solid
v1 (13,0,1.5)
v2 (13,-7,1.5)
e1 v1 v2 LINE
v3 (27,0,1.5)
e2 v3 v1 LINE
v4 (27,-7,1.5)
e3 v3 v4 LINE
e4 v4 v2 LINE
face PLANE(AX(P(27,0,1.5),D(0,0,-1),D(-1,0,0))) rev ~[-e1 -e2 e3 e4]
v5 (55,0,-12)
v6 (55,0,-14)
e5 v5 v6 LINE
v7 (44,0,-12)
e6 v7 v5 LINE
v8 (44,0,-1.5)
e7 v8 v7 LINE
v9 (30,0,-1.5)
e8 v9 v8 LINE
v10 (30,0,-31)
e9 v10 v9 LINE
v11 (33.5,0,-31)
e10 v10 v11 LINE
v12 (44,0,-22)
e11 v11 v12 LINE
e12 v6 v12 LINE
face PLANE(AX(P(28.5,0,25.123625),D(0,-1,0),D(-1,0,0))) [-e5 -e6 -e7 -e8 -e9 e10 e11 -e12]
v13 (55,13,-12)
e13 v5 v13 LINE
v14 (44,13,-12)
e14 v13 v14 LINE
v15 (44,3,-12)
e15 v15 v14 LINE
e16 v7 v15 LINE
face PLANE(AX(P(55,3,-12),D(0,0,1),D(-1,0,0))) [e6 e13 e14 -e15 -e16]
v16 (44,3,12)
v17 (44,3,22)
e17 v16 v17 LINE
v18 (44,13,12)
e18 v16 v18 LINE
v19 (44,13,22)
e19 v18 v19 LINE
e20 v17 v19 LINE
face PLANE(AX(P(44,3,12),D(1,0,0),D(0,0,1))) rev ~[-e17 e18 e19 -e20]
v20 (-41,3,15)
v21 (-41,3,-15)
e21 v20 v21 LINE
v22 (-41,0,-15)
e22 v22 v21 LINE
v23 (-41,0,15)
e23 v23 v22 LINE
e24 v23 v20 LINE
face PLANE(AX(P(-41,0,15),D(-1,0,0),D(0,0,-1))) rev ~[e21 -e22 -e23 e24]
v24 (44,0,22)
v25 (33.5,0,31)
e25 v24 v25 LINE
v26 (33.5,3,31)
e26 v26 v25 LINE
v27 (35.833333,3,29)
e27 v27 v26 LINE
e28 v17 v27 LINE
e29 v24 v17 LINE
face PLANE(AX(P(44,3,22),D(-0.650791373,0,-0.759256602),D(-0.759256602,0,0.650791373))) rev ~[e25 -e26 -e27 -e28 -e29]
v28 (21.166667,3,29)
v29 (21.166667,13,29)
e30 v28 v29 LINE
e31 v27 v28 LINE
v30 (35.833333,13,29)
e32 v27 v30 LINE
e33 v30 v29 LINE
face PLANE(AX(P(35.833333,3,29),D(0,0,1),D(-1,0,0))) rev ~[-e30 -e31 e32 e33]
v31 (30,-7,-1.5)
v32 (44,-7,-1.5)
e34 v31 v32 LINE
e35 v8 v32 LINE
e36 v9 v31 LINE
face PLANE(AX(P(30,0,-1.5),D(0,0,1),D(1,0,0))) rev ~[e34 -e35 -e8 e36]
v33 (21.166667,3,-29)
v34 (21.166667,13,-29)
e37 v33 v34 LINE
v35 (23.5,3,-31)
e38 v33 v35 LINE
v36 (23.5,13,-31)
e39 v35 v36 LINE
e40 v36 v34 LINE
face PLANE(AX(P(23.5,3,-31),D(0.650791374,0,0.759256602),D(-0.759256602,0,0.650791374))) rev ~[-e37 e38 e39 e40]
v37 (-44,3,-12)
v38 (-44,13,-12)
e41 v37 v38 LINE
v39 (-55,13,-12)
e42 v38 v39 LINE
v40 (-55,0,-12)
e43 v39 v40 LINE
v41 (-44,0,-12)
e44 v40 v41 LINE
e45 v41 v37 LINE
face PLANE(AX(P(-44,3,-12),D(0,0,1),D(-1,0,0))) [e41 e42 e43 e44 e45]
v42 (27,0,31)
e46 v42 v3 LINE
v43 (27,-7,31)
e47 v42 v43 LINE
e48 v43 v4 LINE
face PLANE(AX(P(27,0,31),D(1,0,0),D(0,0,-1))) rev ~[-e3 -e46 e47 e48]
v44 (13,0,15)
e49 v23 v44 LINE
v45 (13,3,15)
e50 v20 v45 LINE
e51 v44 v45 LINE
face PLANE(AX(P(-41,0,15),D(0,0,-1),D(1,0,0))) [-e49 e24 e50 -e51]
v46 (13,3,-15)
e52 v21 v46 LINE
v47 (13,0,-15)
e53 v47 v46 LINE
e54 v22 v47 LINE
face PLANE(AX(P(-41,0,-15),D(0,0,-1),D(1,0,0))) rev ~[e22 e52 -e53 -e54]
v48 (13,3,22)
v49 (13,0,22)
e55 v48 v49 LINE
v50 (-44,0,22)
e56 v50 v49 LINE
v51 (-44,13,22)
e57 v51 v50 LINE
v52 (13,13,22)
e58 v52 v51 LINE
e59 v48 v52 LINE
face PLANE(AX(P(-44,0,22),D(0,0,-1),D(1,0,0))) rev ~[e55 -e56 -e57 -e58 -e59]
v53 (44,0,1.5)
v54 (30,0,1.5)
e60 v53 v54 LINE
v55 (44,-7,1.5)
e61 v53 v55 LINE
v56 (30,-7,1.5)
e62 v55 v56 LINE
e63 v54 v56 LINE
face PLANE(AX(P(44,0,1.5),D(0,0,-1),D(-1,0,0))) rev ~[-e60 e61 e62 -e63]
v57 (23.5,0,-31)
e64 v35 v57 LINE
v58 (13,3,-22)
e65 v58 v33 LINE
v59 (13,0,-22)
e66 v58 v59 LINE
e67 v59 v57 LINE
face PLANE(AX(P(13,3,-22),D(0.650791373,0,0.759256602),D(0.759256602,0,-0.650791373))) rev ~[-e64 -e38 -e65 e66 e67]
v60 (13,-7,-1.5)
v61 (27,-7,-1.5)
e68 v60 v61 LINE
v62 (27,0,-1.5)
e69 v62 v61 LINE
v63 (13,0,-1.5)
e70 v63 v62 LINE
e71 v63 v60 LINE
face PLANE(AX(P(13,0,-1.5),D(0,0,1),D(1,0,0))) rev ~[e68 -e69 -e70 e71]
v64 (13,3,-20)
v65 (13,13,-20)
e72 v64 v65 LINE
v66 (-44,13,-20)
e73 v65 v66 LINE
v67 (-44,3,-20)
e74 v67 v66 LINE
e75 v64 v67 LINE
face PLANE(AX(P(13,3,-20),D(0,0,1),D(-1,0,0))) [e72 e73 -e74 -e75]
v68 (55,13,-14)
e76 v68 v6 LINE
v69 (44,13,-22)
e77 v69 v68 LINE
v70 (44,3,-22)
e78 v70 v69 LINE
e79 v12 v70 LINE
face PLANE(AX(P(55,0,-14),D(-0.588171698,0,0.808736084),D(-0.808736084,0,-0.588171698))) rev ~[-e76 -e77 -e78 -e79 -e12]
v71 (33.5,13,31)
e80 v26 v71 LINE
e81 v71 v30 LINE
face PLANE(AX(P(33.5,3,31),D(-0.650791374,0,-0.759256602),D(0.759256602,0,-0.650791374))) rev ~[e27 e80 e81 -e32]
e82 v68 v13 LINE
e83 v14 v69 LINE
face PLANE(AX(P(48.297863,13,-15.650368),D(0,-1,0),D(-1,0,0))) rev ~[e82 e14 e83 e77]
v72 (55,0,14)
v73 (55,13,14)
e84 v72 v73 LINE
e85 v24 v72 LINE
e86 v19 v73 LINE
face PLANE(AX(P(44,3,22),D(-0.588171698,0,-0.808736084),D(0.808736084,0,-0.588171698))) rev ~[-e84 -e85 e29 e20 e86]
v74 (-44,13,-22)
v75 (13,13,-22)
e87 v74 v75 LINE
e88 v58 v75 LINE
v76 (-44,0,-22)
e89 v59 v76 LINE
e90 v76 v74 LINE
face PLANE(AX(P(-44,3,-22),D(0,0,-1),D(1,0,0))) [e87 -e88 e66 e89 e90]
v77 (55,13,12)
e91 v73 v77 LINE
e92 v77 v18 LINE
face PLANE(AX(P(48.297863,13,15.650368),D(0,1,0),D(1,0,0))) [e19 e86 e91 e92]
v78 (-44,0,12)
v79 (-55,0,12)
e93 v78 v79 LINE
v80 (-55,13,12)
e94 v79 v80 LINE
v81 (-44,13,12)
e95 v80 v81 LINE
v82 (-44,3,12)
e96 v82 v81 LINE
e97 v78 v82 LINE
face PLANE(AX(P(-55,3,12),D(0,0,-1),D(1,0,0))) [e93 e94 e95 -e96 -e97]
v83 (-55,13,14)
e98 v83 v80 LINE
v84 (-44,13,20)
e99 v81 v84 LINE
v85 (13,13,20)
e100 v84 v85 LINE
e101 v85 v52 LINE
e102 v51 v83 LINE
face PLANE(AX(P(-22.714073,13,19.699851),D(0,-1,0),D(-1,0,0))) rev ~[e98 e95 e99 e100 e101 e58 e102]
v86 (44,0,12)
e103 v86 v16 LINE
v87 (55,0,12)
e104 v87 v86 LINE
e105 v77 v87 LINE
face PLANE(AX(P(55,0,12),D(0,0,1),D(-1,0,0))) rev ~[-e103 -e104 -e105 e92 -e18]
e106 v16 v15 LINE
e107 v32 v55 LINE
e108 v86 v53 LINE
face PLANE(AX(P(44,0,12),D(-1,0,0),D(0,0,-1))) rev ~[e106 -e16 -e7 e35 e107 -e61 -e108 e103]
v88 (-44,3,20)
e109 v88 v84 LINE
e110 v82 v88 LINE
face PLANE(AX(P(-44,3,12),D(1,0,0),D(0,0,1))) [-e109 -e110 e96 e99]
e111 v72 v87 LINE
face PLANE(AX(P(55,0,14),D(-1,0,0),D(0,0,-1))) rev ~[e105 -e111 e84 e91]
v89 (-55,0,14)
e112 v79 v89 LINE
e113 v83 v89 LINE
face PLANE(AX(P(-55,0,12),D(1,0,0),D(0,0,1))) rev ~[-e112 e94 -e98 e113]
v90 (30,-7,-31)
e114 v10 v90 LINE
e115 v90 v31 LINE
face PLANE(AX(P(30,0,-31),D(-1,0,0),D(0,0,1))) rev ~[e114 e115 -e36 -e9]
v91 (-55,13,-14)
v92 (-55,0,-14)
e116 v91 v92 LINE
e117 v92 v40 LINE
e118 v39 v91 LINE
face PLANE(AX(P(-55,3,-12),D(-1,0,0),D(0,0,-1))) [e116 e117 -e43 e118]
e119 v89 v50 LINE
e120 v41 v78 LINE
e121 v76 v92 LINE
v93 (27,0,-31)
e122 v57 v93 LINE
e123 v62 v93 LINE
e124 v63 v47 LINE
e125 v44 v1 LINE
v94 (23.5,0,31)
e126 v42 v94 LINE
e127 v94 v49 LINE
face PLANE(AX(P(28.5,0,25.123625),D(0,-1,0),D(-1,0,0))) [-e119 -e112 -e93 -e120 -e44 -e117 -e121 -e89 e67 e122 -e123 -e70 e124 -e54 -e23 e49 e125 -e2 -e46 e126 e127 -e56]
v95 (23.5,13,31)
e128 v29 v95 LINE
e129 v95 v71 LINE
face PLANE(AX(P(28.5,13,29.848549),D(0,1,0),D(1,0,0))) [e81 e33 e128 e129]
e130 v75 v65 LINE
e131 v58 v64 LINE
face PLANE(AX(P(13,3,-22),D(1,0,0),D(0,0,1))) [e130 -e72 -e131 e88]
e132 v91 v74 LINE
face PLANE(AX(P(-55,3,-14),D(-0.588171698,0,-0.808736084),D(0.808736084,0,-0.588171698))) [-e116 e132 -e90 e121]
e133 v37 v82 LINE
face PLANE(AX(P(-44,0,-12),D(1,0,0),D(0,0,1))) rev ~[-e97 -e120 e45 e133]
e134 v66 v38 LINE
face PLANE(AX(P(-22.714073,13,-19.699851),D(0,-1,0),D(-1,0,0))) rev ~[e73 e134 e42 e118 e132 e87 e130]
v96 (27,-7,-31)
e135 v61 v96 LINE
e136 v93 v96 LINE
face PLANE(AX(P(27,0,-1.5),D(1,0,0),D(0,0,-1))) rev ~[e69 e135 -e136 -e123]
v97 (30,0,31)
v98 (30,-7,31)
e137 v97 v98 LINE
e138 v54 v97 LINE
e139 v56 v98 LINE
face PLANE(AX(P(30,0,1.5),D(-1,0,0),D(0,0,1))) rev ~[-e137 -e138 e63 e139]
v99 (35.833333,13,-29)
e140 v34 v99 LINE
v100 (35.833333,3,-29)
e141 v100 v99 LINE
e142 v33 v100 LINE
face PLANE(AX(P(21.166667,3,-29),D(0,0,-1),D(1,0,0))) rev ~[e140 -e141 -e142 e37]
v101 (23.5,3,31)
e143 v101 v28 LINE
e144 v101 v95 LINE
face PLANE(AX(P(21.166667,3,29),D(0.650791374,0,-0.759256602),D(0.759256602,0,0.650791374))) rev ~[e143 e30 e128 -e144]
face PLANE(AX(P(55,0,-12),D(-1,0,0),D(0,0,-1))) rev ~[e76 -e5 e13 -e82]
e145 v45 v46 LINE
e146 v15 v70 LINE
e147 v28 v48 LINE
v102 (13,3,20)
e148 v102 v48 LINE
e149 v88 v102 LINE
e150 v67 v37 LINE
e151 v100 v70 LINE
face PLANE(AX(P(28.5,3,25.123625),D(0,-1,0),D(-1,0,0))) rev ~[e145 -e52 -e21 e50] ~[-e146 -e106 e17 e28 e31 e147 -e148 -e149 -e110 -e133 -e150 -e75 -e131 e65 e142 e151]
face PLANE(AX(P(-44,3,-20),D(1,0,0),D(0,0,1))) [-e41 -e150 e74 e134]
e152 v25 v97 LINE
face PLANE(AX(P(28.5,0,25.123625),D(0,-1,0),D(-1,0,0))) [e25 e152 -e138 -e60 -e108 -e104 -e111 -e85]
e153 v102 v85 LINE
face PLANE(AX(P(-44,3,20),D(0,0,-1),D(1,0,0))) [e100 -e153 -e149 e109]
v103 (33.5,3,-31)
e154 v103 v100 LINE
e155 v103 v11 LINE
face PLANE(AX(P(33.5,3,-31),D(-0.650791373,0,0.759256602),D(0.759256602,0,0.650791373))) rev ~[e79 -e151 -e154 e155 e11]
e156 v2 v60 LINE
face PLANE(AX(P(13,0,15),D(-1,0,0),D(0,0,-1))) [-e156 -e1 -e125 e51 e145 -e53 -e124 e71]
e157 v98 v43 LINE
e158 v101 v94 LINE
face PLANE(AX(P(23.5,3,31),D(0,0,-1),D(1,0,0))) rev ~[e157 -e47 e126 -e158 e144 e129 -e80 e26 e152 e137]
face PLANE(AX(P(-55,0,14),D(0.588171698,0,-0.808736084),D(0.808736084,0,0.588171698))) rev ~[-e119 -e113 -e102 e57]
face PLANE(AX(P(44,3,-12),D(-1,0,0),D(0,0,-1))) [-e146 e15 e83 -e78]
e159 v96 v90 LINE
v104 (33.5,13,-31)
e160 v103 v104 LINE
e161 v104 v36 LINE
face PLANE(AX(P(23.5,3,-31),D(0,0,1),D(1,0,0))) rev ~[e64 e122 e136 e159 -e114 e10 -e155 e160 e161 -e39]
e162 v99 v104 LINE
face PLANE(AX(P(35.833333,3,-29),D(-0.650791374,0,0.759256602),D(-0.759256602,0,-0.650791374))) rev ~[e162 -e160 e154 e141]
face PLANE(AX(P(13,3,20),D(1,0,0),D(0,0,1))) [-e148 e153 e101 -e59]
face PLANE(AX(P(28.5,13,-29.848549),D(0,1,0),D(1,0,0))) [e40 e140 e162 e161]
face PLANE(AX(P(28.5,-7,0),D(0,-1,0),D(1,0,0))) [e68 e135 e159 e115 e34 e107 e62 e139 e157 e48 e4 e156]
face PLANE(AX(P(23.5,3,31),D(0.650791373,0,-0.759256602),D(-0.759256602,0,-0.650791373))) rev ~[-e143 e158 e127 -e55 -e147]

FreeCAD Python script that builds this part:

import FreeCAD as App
import Part
import Sketcher

V = App.Vector


def add_polygon(sketch, points):
    """Adds a closed chain of lines whose ends are joined by coincident constraints."""
    first, n = sketch.GeometryCount, len(points)
    for a, b in zip(points, points[1:] + points[:1]):
        sketch.addGeometry(Part.LineSegment(App.Vector(*a, 0), App.Vector(*b, 0)), False)
    for i in range(n):
        sketch.addConstraint(Sketcher.Constraint("Coincident", first + i, 2, first + (i + 1) % n, 1))

doc = App.newDocument("Part")
body = doc.addObject("PartDesign::Body", "Body")

# Sketch on XZ plane
sketch1 = body.newObject("Sketcher::SketchObject", "Sketch")
sketch1.AttachmentSupport = (doc.getObject("XZ_Plane"), [""])
sketch1.MapMode = "FlatFace"
add_polygon(sketch1, [(-55, -12), (-44, -12), (-44, 12), (-55, 12), (-55, 14), (-44, 22), (44, 22), (55, 14), (55, 12), (44, 12), (44, -12), (55, -12), (55, -14), (44, -22), (-44, -22), (-55, -14)])  # lines 0-15
add_polygon(sketch1, [(13, 15), (-41, 15), (-41, -15), (13, -15)])  # lines 16-19
sketch1.addConstraint([
    Sketcher.Constraint("Horizontal", 0),
    Sketcher.Constraint("Vertical", 1),
    Sketcher.Constraint("Horizontal", 2),
    Sketcher.Constraint("Vertical", 3),
    Sketcher.Constraint("Horizontal", 5),
    Sketcher.Constraint("Vertical", 7),
    Sketcher.Constraint("Horizontal", 8),
    Sketcher.Constraint("Vertical", 9),
    Sketcher.Constraint("Horizontal", 10),
    Sketcher.Constraint("Vertical", 11),
    Sketcher.Constraint("Horizontal", 13),
    Sketcher.Constraint("Vertical", 15),
    Sketcher.Constraint("Horizontal", 16),
    Sketcher.Constraint("Vertical", 17),
    Sketcher.Constraint("Horizontal", 18),
    Sketcher.Constraint("Vertical", 19),
    Sketcher.Constraint("Symmetric", 0, 2, 8, 2, -1, 1),
    Sketcher.Constraint("Symmetric", 2, 2, 10, 2, -1, 1),
    Sketcher.Constraint("Symmetric", 4, 2, 12, 2, -1, 1),
    Sketcher.Constraint("Symmetric", 6, 2, 14, 2, -1, 1),
    Sketcher.Constraint("Symmetric", 3, 2, 6, 2, -2),
    Sketcher.Constraint("Parallel", 4, 12),
    Sketcher.Constraint("Parallel", 6, 14),
    Sketcher.Constraint("Horizontal", 2, 2, 7, 2),
    Sketcher.Constraint("Vertical", 1, 2, 4, 2),
    Sketcher.Constraint("Vertical", 5, 2, 8, 2),
    Sketcher.Constraint("DistanceX", 0, 1, 0, 2, 11.0),
    Sketcher.Constraint("DistanceX", 5, 1, 5, 2, 88.0),
    Sketcher.Constraint("DistanceX", 16, 2, 16, 1, 54.0),
    Sketcher.Constraint("DistanceY", 1, 1, 1, 2, 24.0),
    Sketcher.Constraint("DistanceY", 3, 1, 3, 2, 2.0),
    Sketcher.Constraint("DistanceY", 17, 2, 17, 1, 30.0),
    Sketcher.Constraint("DistanceY", -1, 1, 4, 2, 22.0),
    Sketcher.Constraint("DistanceX", 16, 2, -1, 1, 41.0),
    Sketcher.Constraint("DistanceY", -1, 1, 16, 2, 15.0),
])
pad1 = body.newObject("PartDesign::Pad", "Pad")
pad1.Profile = sketch1
pad1.Length = 3
pad1.Reversed = True

# Sketch on XZ plane
sketch2 = body.newObject("Sketcher::SketchObject", "Sketch001")
sketch2.AttachmentSupport = (doc.getObject("XZ_Plane"), [""])
sketch2.MapMode = "FlatFace"
sketch2.AttachmentOffset = App.Placement(V(0, 0, -3), App.Rotation())
add_polygon(sketch2, [(-44, -20), (13, -20), (13, -22), (-44, -22), (-55, -14), (-55, -12), (-44, -12)])  # lines 0-6
add_polygon(sketch2, [(-44, 20), (-44, 12), (-55, 12), (-55, 14), (-44, 22), (13, 22), (13, 20)])  # lines 7-13
add_polygon(sketch2, [(44, -22), (44, -12), (55, -12), (55, -14)])  # lines 14-17
add_polygon(sketch2, [(44, 22), (55, 14), (55, 12), (44, 12)])  # lines 18-21
sketch2.addConstraint([
    Sketcher.Constraint("Horizontal", 0),
    Sketcher.Constraint("Vertical", 1),
    Sketcher.Constraint("Horizontal", 2),
    Sketcher.Constraint("Vertical", 4),
    Sketcher.Constraint("Horizontal", 5),
    Sketcher.Constraint("Vertical", 6),
    Sketcher.Constraint("Vertical", 7),
    Sketcher.Constraint("Horizontal", 8),
    Sketcher.Constraint("Vertical", 9),
    Sketcher.Constraint("Horizontal", 11),
    Sketcher.Constraint("Vertical", 12),
    Sketcher.Constraint("Horizontal", 13),
    Sketcher.Constraint("Vertical", 14),
    Sketcher.Constraint("Horizontal", 15),
    Sketcher.Constraint("Vertical", 16),
    Sketcher.Constraint("Vertical", 19),
    Sketcher.Constraint("Horizontal", 20),
    Sketcher.Constraint("Vertical", 21),
    Sketcher.Constraint("Symmetric", 7, 2, 14, 2, -1, 1),
    Sketcher.Constraint("Symmetric", 9, 2, 16, 2, -1, 1),
    Sketcher.Constraint("Symmetric", 10, 2, 17, 2, -1, 1),
    Sketcher.Constraint("Symmetric", 3, 2, 18, 2, -1, 1),
    Sketcher.Constraint("Symmetric", 5, 2, 20, 2, -1, 1),
    Sketcher.Constraint("Symmetric", 2, 2, 21, 2, -1, 1),
    Sketcher.Constraint("Symmetric", 5, 2, 14, 2, -2),
    Sketcher.Constraint("Symmetric", 3, 2, 16, 2, -2),
    Sketcher.Constraint("Symmetric", 1, 2, 11, 2, -1),
    Sketcher.Constraint("Equal", 1, 4),
    Sketcher.Constraint("Equal", 6, 7),
    Sketcher.Constraint("DistanceX", 0, 1, 0, 2, 57.0),
    Sketcher.Constraint("DistanceX", 5, 1, 5, 2, 11.0),
    Sketcher.Constraint("DistanceY", 1, 2, 1, 1, 2.0),
    Sketcher.Constraint("DistanceY", 6, 2, 6, 1, 8.0),
    Sketcher.Constraint("DistanceX", -1, 1, 0, 2, 13.0),
    Sketcher.Constraint("DistanceY", 0, 2, -1, 1, 20.0),
])
pad2 = body.newObject("PartDesign::Pad", "Pad001")
pad2.Profile = sketch2
pad2.Length = 10
pad2.Reversed = True

# Sketch on XZ plane
sketch3 = body.newObject("Sketcher::SketchObject", "Sketch002")
sketch3.AttachmentSupport = (doc.getObject("XZ_Plane"), [""])
sketch3.MapMode = "FlatFace"
sketch3.AttachmentOffset = App.Placement(V(0, 0, -3), App.Rotation())
add_polygon(sketch3, [(44, 22), (13, 22), (24, 31), (34, 31)])  # lines 0-3
add_polygon(sketch3, [(13, -22), (44, -22), (34, -31), (24, -31)])  # lines 4-7
sketch3.addConstraint([
    Sketcher.Constraint("Horizontal", 0),
    Sketcher.Constraint("Horizontal", 2),
    Sketcher.Constraint("Horizontal", 4),
    Sketcher.Constraint("Horizontal", 6),
    Sketcher.Constraint("Symmetric", 3, 2, 4, 2, -1),
    Sketcher.Constraint("Symmetric", 2, 2, 5, 2, -1),
    Sketcher.Constraint("Parallel", 1, 5),
    Sketcher.Constraint("Parallel", 3, 7),
    Sketcher.Constraint("Vertical", 1, 2, 6, 2),
    Sketcher.Constraint("DistanceX", 0, 2, 0, 1, 31.0),
    Sketcher.Constraint("DistanceX", 2, 1, 2, 2, 10.0),
    Sketcher.Constraint("DistanceX", -1, 1, 0, 2, 13.0),
    Sketcher.Constraint("DistanceY", -1, 1, 0, 2, 22.0),
    Sketcher.Constraint("DistanceY", -1, 1, 1, 2, 31.0),
])
pad3 = body.newObject("PartDesign::Pad", "Pad002")
pad3.Profile = sketch3
pad3.Length = 3

# Sketch on XZ plane
sketch4 = body.newObject("Sketcher::SketchObject", "Sketch003")
sketch4.AttachmentSupport = (doc.getObject("XZ_Plane"), [""])
sketch4.MapMode = "FlatFace"
sketch4.AttachmentOffset = App.Placement(V(0, 0, -3), App.Rotation())
add_polygon(sketch4, [(21.2, 29), (23.5, 31), (33.5, 31), (35.8, 29)])  # lines 0-3
add_polygon(sketch4, [(35.8, -29), (33.5, -31), (23.5, -31), (21.2, -29)])  # lines 4-7
sketch4.addConstraint([
    Sketcher.Constraint("Horizontal", 1),
    Sketcher.Constraint("Horizontal", 3),
    Sketcher.Constraint("Horizontal", 5),
    Sketcher.Constraint("Horizontal", 7),
    Sketcher.Constraint("Symmetric", 1, 2, 4, 2, -1),
    Sketcher.Constraint("Symmetric", 3, 2, 6, 2, -1),
    Sketcher.Constraint("Parallel", 0, 4),
    Sketcher.Constraint("Parallel", 2, 6),
    Sketcher.Constraint("Vertical", 0, 2, 5, 2),
    Sketcher.Constraint("DistanceX", 1, 1, 1, 2, 10.0),
    Sketcher.Constraint("DistanceY", -1, 1, 0, 2, 31.0),
    Sketcher.Constraint("DistanceY", -1, 1, 2, 2, 29.0),
    Sketcher.Constraint("DistanceX", -1, 1, 0, 2, 23.5),
    Sketcher.Constraint("Distance", 0, 3.073181),
])
pad4 = body.newObject("PartDesign::Pad", "Pad003")
pad4.Profile = sketch4
pad4.Length = 10
pad4.Reversed = True

# Sketch on XZ plane
sketch5 = body.newObject("Sketcher::SketchObject", "Sketch004")
sketch5.AttachmentSupport = (doc.getObject("XZ_Plane"), [""])
sketch5.MapMode = "FlatFace"
add_polygon(sketch5, [(13, 1.5), (13, -1.5), (27, -1.5), (27, -31), (30, -31), (30, -1.5), (44, -1.5), (44, 1.5), (30, 1.5), (30, 31), (27, 31), (27, 1.5)])  # lines 0-11
sketch5.addConstraint([
    Sketcher.Constraint("Vertical", 0),
    Sketcher.Constraint("Horizontal", 1),
    Sketcher.Constraint("Vertical", 2),
    Sketcher.Constraint("Horizontal", 3),
    Sketcher.Constraint("Vertical", 4),
    Sketcher.Constraint("Horizontal", 5),
    Sketcher.Constraint("Vertical", 6),
    Sketcher.Constraint("Horizontal", 7),
    Sketcher.Constraint("Vertical", 8),
    Sketcher.Constraint("Horizontal", 9),
    Sketcher.Constraint("Vertical", 10),
    Sketcher.Constraint("Horizontal", 11),
    Sketcher.Constraint("Symmetric", 4, 2, 7, 2, -1),
    Sketcher.Constraint("Symmetric", 2, 2, 9, 2, -1),
    Sketcher.Constraint("Horizontal", 1, 2, 4, 2),
    Sketcher.Constraint("Horizontal", 7, 2, 10, 2),
    Sketcher.Constraint("Equal", 1, 5),
    Sketcher.Constraint("Equal", 9, 0),
    Sketcher.Constraint("DistanceX", 1, 1, 1, 2, 14.0),
    Sketcher.Constraint("DistanceX", 3, 1, 3, 2, 3.0),
    Sketcher.Constraint("DistanceY", 2, 2, 2, 1, 29.5),
    Sketcher.Constraint("DistanceX", -1, 1, 0, 2, 13.0),
])
pad5 = body.newObject("PartDesign::Pad", "Pad004")
pad5.Profile = sketch5
pad5.Length = 7

doc.recompute()
